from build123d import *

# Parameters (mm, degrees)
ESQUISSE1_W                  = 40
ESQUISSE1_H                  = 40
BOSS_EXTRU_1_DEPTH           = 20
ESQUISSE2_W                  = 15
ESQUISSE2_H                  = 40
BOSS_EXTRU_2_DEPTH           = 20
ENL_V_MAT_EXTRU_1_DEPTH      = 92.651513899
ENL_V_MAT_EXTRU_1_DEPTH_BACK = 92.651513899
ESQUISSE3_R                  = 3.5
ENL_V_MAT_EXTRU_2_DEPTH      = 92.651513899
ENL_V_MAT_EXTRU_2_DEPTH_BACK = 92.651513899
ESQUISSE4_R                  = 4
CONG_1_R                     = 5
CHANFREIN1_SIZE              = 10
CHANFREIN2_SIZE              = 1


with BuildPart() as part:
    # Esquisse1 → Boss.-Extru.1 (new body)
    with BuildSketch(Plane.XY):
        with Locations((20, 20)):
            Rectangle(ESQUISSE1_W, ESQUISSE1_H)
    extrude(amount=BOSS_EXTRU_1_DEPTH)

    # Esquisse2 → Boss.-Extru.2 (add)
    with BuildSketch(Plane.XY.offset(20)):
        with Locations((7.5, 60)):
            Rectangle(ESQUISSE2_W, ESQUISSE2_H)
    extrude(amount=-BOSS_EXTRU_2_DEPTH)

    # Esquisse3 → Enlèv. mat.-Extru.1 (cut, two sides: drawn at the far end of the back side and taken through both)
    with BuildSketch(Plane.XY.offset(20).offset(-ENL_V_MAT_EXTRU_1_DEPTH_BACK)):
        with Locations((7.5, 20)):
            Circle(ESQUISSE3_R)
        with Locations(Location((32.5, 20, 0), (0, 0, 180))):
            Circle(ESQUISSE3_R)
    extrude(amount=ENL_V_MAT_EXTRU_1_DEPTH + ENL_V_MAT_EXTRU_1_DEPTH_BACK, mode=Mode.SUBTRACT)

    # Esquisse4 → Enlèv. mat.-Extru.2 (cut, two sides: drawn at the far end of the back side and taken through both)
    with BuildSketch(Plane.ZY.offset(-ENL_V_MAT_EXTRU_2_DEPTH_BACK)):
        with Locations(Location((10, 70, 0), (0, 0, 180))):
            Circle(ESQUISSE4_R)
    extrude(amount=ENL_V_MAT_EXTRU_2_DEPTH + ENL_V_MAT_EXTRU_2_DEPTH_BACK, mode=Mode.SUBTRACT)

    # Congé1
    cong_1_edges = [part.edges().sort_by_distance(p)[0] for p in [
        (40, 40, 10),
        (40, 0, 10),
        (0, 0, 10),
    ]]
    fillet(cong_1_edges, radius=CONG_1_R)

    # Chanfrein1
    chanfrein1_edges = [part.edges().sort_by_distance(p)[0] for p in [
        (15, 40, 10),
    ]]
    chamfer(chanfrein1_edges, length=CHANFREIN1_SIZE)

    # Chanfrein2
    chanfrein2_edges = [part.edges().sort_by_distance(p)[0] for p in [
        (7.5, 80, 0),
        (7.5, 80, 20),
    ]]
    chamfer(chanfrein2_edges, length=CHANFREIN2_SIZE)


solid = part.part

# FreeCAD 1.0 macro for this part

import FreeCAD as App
import Part
import Sketcher
from FreeCAD import Vector


def edges_at(feature, points):
    """Names of the edges that pass closest to the given points."""
    edges = feature.Shape.Edges
    near = lambda p: min(range(len(edges)), key=lambda i: edges[i].distToShape(Part.Vertex(*p))[0])
    return sorted({f"Edge{near(p) + 1}" for p in points})

doc = App.newDocument("Part")
params = doc.addObject("Spreadsheet::Sheet", "Params")
for row, (alias, value) in enumerate([
    ("sketch1_width", "40 mm"),
    ("pad1_length", "20 mm"),
    ("sketch2_width", "15 mm"),
    ("sketch2_height", "40 mm"),
    ("pad2_length", "20 mm"),
    ("sketch3_diameter", "7 mm"),
    ("sketch4_diameter", "8 mm"),
    ("fillet_radius", "5 mm"),
    ("chamfer_size", "10 mm"),
    ("chamfer2_size", "1 mm"),
], start=1):
    params.set(f"A{row}", alias)
    params.set(f"B{row}", "=" + value)
    params.setAlias(f"B{row}", alias)

body = doc.addObject("PartDesign::Body", "Body")

# Sketch on XY plane
sketch1 = body.newObject("Sketcher::SketchObject", "Sketch")
sketch1.AttachmentSupport = (doc.getObject("XY_Plane"), [""])
sketch1.MapMode = "FlatFace"
sketch1.addGeometry(Part.LineSegment(Vector(0, 40, 0), Vector(0, 0, 0)), False)
sketch1.addGeometry(Part.LineSegment(Vector(0, 0, 0), Vector(40, 0, 0)), False)
sketch1.addGeometry(Part.LineSegment(Vector(40, 0, 0), Vector(40, 40, 0)), False)
sketch1.addGeometry(Part.LineSegment(Vector(40, 40, 0), Vector(0, 40, 0)), False)
sketch1.addConstraint(Sketcher.Constraint("Coincident", 0, 2, 1, 1))
sketch1.addConstraint(Sketcher.Constraint("Coincident", 1, 2, 2, 1))
sketch1.addConstraint(Sketcher.Constraint("Coincident", 2, 2, 3, 1))
sketch1.addConstraint(Sketcher.Constraint("Coincident", 3, 2, 0, 1))
sketch1.addConstraint(Sketcher.Constraint("Vertical", 0))
sketch1.addConstraint(Sketcher.Constraint("Horizontal", 1))
sketch1.addConstraint(Sketcher.Constraint("Vertical", 2))
sketch1.addConstraint(Sketcher.Constraint("Horizontal", 3))
sketch1.addConstraint(Sketcher.Constraint("Coincident", 0, 2, -1, 1))
sketch1.addConstraint(Sketcher.Constraint("Equal", 3, 0))
sketch1.addConstraint(Sketcher.Constraint("DistanceX", 1, 1, 1, 2, 40.0))
sketch1.setExpression("Constraints[10]", "Params.sketch1_width")
pad1 = body.newObject("PartDesign::Pad", "Pad")
pad1.Profile = sketch1
pad1.setExpression("Length", "Params.pad1_length")

# Sketch on XY plane
sketch2 = body.newObject("Sketcher::SketchObject", "Sketch001")
sketch2.AttachmentSupport = (doc.getObject("XY_Plane"), [""])
sketch2.MapMode = "FlatFace"
sketch2.AttachmentOffset = App.Placement(Vector(0, 0, 20), App.Rotation())
sketch2.addGeometry(Part.LineSegment(Vector(0, 80, 0), Vector(0, 40, 0)), False)
sketch2.addGeometry(Part.LineSegment(Vector(0, 40, 0), Vector(15, 40, 0)), False)
sketch2.addGeometry(Part.LineSegment(Vector(15, 40, 0), Vector(15, 80, 0)), False)
sketch2.addGeometry(Part.LineSegment(Vector(15, 80, 0), Vector(0, 80, 0)), False)
sketch2.addConstraint(Sketcher.Constraint("Coincident", 0, 2, 1, 1))
sketch2.addConstraint(Sketcher.Constraint("Coincident", 1, 2, 2, 1))
sketch2.addConstraint(Sketcher.Constraint("Coincident", 2, 2, 3, 1))
sketch2.addConstraint(Sketcher.Constraint("Coincident", 3, 2, 0, 1))
sketch2.addConstraint(Sketcher.Constraint("Vertical", 0))
sketch2.addConstraint(Sketcher.Constraint("Horizontal", 1))
sketch2.addConstraint(Sketcher.Constraint("Vertical", 2))
sketch2.addConstraint(Sketcher.Constraint("Horizontal", 3))
sketch2.addConstraint(Sketcher.Constraint("PointOnObject", 0, 2, -2))
sketch2.addConstraint(Sketcher.Constraint("DistanceX", 1, 1, 1, 2, 15.0))
sketch2.addConstraint(Sketcher.Constraint("DistanceY", 0, 2, 0, 1, 40.0))
sketch2.addConstraint(Sketcher.Constraint("DistanceY", -1, 1, 0, 2, 40.0))
sketch2.setExpression("Constraints[9]", "Params.sketch2_width")
sketch2.setExpression("Constraints[10]", "Params.sketch2_height")
pad2 = body.newObject("PartDesign::Pad", "Pad001")
pad2.Profile = sketch2
pad2.setExpression("Length", "Params.pad2_length")
pad2.Reversed = True

# Sketch on XY plane
sketch3 = body.newObject("Sketcher::SketchObject", "Sketch002")
sketch3.AttachmentSupport = (doc.getObject("XY_Plane"), [""])
sketch3.MapMode = "FlatFace"
sketch3.AttachmentOffset = App.Placement(Vector(0, 0, 20), App.Rotation())
sketch3.addGeometry(Part.Circle(Vector(7.5, 20, 0), Vector(0, 0, 1), 3.5), False)
sketch3.addGeometry(Part.Circle(Vector(32.5, 20, 0), Vector(0, 0, 1), 3.5), False)
sketch3.addConstraint(Sketcher.Constraint("Equal", 0, 1))
sketch3.addConstraint(Sketcher.Constraint("Horizontal", 0, 3, 1, 3))
sketch3.addConstraint(Sketcher.Constraint("Diameter", 0, 7.0))
sketch3.addConstraint(Sketcher.Constraint("DistanceY", -1, 1, 0, 3, 20.0))
sketch3.addConstraint(Sketcher.Constraint("DistanceX", 0, 3, 1, 3, 25.0))
sketch3.addConstraint(Sketcher.Constraint("DistanceX", -1, 1, 0, 3, 7.5))
sketch3.setExpression("Constraints[2]", "Params.sketch3_diameter")
pocket1 = body.newObject("PartDesign::Pocket", "Pocket")
pocket1.Profile = sketch3
pocket1.Type = "ThroughAll"
pocket1.Midplane = True

# Sketch on YZ plane
sketch4 = body.newObject("Sketcher::SketchObject", "Sketch003")
sketch4.AttachmentSupport = (doc.getObject("YZ_Plane"), [""])
sketch4.MapMode = "FlatFace"
sketch4.addGeometry(Part.Circle(Vector(70, 10, 0), Vector(0, 0, 1), 4), False)
sketch4.addConstraint(Sketcher.Constraint("Diameter", 0, 8.0))
sketch4.addConstraint(Sketcher.Constraint("DistanceX", -1, 1, 0, 3, 70.0))
sketch4.addConstraint(Sketcher.Constraint("DistanceY", -1, 1, 0, 3, 10.0))
sketch4.setExpression("Constraints[0]", "Params.sketch4_diameter")
pocket2 = body.newObject("PartDesign::Pocket", "Pocket001")
pocket2.Profile = sketch4
pocket2.Type = "ThroughAll"
pocket2.Midplane = True
doc.recompute()

fillet = body.newObject("PartDesign::Fillet", "Fillet")
fillet.Base = (pocket2, edges_at(pocket2, [(40, 40, 10), (40, 0, 10), (0, 0, 10)]))
fillet.setExpression("Radius", "Params.fillet_radius")
doc.recompute()

chamfer = body.newObject("PartDesign::Chamfer", "Chamfer")
chamfer.Base = (fillet, edges_at(fillet, [(15, 40, 10)]))
chamfer.setExpression("Size", "Params.chamfer_size")
doc.recompute()

chamfer2 = body.newObject("PartDesign::Chamfer", "Chamfer001")
chamfer2.Base = (chamfer, edges_at(chamfer, [(7.5, 80, 0), (7.5, 80, 20)]))
chamfer2.setExpression("Size", "Params.chamfer2_size")

doc.recompute()
